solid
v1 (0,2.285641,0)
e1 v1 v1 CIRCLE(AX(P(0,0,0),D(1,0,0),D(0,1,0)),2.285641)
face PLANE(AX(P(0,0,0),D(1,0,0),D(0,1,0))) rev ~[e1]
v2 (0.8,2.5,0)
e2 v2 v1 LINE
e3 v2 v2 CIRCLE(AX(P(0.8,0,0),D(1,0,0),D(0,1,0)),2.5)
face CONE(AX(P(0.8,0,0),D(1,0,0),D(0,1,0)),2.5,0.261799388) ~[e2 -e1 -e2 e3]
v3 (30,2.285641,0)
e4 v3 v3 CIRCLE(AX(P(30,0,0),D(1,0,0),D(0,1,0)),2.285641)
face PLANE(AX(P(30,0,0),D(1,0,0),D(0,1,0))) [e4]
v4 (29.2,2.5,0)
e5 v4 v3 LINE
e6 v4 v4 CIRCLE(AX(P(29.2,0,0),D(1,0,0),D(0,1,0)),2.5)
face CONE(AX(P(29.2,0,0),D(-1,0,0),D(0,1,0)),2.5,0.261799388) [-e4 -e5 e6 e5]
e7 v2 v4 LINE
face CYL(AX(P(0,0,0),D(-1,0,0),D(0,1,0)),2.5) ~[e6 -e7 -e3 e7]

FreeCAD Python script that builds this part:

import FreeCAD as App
import Part
import Sketcher
from FreeCAD import Vector


def edges_at(feature, points):
    """Names of the edges that pass closest to the given points."""
    edges = feature.Shape.Edges
    near = lambda p: min(range(len(edges)), key=lambda i: edges[i].distToShape(Part.Vertex(*p))[0])
    return sorted({f"Edge{near(p) + 1}" for p in points})

doc = App.newDocument("Part")
params = doc.addObject("Spreadsheet::Sheet", "Params")
for row, (alias, value) in enumerate([
    ("sketch1_diameter", "5 mm"),
    ("pad1_length", "30 mm"),
    ("chamfer_size", "0.8 mm"),
    ("chamfer2_size", "0.8 mm"),
], start=1):
    params.set(f"A{row}", alias)
    params.set(f"B{row}", "=" + value)
    params.setAlias(f"B{row}", alias)

body = doc.addObject("PartDesign::Body", "Body")

sketch1 = body.newObject("Sketcher::SketchObject", "Sketch")
sketch1.AttachmentSupport = (doc.getObject("YZ_Plane"), [""])
sketch1.MapMode = "FlatFace"
sketch1.addGeometry(Part.Circle(Vector(0, 0, 0), Vector(0, 0, 1), 2.5), False)
sketch1.addConstraint(Sketcher.Constraint("Coincident", 0, 3, -1, 1))
sketch1.addConstraint(Sketcher.Constraint("Diameter", 0, 5.0))
sketch1.setExpression("Constraints[1]", "Params.sketch1_diameter")
pad1 = body.newObject("PartDesign::Pad", "Pad")
pad1.Profile = sketch1
pad1.setExpression("Length", "Params.pad1_length")
doc.recompute()

chamfer = body.newObject("PartDesign::Chamfer", "Chamfer")
chamfer.Base = (pad1, edges_at(pad1, [(0, -2.5, 0)]))
chamfer.ChamferType = "Distance and Angle"
chamfer.setExpression("Size", "Params.chamfer_size")
chamfer.Angle = 15
doc.recompute()

chamfer2 = body.newObject("PartDesign::Chamfer", "Chamfer001")
chamfer2.Base = (chamfer, edges_at(chamfer, [(30, -2.5, 0)]))
chamfer2.ChamferType = "Distance and Angle"
chamfer2.setExpression("Size", "Params.chamfer2_size")
chamfer2.Angle = 15

doc.recompute()
